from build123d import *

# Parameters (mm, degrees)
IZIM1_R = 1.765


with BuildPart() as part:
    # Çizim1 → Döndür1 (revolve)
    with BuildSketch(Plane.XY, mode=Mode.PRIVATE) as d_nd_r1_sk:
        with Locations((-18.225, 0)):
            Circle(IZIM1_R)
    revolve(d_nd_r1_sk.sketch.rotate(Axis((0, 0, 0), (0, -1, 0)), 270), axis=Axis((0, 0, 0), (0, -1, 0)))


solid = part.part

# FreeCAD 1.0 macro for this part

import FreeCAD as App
import Part
import Sketcher

doc = App.newDocument("Part")
body = doc.addObject("PartDesign::Body", "Body")

# Sketch on XY plane
sketch1 = body.newObject("Sketcher::SketchObject", "Sketch")
sketch1.AttachmentSupport = (doc.getObject("XY_Plane"), [""])
sketch1.MapMode = "FlatFace"
sketch1.addGeometry(Part.Circle(App.Vector(-18.2, 0, 0), App.Vector(0, 0, 1), 1.8), False)
sketch1.addConstraint([
    Sketcher.Constraint("PointOnObject", 0, 3, -1),
    Sketcher.Constraint("Diameter", 0, 3.53),
    Sketcher.Constraint("DistanceX", 0, 3, -1, 1, 18.225),
])
revolution = body.newObject("PartDesign::Revolution", "Revolution")
revolution.Profile = sketch1
revolution.ReferenceAxis = (sketch1, ["V_Axis"])
revolution.Angle = 360

doc.recompute()
